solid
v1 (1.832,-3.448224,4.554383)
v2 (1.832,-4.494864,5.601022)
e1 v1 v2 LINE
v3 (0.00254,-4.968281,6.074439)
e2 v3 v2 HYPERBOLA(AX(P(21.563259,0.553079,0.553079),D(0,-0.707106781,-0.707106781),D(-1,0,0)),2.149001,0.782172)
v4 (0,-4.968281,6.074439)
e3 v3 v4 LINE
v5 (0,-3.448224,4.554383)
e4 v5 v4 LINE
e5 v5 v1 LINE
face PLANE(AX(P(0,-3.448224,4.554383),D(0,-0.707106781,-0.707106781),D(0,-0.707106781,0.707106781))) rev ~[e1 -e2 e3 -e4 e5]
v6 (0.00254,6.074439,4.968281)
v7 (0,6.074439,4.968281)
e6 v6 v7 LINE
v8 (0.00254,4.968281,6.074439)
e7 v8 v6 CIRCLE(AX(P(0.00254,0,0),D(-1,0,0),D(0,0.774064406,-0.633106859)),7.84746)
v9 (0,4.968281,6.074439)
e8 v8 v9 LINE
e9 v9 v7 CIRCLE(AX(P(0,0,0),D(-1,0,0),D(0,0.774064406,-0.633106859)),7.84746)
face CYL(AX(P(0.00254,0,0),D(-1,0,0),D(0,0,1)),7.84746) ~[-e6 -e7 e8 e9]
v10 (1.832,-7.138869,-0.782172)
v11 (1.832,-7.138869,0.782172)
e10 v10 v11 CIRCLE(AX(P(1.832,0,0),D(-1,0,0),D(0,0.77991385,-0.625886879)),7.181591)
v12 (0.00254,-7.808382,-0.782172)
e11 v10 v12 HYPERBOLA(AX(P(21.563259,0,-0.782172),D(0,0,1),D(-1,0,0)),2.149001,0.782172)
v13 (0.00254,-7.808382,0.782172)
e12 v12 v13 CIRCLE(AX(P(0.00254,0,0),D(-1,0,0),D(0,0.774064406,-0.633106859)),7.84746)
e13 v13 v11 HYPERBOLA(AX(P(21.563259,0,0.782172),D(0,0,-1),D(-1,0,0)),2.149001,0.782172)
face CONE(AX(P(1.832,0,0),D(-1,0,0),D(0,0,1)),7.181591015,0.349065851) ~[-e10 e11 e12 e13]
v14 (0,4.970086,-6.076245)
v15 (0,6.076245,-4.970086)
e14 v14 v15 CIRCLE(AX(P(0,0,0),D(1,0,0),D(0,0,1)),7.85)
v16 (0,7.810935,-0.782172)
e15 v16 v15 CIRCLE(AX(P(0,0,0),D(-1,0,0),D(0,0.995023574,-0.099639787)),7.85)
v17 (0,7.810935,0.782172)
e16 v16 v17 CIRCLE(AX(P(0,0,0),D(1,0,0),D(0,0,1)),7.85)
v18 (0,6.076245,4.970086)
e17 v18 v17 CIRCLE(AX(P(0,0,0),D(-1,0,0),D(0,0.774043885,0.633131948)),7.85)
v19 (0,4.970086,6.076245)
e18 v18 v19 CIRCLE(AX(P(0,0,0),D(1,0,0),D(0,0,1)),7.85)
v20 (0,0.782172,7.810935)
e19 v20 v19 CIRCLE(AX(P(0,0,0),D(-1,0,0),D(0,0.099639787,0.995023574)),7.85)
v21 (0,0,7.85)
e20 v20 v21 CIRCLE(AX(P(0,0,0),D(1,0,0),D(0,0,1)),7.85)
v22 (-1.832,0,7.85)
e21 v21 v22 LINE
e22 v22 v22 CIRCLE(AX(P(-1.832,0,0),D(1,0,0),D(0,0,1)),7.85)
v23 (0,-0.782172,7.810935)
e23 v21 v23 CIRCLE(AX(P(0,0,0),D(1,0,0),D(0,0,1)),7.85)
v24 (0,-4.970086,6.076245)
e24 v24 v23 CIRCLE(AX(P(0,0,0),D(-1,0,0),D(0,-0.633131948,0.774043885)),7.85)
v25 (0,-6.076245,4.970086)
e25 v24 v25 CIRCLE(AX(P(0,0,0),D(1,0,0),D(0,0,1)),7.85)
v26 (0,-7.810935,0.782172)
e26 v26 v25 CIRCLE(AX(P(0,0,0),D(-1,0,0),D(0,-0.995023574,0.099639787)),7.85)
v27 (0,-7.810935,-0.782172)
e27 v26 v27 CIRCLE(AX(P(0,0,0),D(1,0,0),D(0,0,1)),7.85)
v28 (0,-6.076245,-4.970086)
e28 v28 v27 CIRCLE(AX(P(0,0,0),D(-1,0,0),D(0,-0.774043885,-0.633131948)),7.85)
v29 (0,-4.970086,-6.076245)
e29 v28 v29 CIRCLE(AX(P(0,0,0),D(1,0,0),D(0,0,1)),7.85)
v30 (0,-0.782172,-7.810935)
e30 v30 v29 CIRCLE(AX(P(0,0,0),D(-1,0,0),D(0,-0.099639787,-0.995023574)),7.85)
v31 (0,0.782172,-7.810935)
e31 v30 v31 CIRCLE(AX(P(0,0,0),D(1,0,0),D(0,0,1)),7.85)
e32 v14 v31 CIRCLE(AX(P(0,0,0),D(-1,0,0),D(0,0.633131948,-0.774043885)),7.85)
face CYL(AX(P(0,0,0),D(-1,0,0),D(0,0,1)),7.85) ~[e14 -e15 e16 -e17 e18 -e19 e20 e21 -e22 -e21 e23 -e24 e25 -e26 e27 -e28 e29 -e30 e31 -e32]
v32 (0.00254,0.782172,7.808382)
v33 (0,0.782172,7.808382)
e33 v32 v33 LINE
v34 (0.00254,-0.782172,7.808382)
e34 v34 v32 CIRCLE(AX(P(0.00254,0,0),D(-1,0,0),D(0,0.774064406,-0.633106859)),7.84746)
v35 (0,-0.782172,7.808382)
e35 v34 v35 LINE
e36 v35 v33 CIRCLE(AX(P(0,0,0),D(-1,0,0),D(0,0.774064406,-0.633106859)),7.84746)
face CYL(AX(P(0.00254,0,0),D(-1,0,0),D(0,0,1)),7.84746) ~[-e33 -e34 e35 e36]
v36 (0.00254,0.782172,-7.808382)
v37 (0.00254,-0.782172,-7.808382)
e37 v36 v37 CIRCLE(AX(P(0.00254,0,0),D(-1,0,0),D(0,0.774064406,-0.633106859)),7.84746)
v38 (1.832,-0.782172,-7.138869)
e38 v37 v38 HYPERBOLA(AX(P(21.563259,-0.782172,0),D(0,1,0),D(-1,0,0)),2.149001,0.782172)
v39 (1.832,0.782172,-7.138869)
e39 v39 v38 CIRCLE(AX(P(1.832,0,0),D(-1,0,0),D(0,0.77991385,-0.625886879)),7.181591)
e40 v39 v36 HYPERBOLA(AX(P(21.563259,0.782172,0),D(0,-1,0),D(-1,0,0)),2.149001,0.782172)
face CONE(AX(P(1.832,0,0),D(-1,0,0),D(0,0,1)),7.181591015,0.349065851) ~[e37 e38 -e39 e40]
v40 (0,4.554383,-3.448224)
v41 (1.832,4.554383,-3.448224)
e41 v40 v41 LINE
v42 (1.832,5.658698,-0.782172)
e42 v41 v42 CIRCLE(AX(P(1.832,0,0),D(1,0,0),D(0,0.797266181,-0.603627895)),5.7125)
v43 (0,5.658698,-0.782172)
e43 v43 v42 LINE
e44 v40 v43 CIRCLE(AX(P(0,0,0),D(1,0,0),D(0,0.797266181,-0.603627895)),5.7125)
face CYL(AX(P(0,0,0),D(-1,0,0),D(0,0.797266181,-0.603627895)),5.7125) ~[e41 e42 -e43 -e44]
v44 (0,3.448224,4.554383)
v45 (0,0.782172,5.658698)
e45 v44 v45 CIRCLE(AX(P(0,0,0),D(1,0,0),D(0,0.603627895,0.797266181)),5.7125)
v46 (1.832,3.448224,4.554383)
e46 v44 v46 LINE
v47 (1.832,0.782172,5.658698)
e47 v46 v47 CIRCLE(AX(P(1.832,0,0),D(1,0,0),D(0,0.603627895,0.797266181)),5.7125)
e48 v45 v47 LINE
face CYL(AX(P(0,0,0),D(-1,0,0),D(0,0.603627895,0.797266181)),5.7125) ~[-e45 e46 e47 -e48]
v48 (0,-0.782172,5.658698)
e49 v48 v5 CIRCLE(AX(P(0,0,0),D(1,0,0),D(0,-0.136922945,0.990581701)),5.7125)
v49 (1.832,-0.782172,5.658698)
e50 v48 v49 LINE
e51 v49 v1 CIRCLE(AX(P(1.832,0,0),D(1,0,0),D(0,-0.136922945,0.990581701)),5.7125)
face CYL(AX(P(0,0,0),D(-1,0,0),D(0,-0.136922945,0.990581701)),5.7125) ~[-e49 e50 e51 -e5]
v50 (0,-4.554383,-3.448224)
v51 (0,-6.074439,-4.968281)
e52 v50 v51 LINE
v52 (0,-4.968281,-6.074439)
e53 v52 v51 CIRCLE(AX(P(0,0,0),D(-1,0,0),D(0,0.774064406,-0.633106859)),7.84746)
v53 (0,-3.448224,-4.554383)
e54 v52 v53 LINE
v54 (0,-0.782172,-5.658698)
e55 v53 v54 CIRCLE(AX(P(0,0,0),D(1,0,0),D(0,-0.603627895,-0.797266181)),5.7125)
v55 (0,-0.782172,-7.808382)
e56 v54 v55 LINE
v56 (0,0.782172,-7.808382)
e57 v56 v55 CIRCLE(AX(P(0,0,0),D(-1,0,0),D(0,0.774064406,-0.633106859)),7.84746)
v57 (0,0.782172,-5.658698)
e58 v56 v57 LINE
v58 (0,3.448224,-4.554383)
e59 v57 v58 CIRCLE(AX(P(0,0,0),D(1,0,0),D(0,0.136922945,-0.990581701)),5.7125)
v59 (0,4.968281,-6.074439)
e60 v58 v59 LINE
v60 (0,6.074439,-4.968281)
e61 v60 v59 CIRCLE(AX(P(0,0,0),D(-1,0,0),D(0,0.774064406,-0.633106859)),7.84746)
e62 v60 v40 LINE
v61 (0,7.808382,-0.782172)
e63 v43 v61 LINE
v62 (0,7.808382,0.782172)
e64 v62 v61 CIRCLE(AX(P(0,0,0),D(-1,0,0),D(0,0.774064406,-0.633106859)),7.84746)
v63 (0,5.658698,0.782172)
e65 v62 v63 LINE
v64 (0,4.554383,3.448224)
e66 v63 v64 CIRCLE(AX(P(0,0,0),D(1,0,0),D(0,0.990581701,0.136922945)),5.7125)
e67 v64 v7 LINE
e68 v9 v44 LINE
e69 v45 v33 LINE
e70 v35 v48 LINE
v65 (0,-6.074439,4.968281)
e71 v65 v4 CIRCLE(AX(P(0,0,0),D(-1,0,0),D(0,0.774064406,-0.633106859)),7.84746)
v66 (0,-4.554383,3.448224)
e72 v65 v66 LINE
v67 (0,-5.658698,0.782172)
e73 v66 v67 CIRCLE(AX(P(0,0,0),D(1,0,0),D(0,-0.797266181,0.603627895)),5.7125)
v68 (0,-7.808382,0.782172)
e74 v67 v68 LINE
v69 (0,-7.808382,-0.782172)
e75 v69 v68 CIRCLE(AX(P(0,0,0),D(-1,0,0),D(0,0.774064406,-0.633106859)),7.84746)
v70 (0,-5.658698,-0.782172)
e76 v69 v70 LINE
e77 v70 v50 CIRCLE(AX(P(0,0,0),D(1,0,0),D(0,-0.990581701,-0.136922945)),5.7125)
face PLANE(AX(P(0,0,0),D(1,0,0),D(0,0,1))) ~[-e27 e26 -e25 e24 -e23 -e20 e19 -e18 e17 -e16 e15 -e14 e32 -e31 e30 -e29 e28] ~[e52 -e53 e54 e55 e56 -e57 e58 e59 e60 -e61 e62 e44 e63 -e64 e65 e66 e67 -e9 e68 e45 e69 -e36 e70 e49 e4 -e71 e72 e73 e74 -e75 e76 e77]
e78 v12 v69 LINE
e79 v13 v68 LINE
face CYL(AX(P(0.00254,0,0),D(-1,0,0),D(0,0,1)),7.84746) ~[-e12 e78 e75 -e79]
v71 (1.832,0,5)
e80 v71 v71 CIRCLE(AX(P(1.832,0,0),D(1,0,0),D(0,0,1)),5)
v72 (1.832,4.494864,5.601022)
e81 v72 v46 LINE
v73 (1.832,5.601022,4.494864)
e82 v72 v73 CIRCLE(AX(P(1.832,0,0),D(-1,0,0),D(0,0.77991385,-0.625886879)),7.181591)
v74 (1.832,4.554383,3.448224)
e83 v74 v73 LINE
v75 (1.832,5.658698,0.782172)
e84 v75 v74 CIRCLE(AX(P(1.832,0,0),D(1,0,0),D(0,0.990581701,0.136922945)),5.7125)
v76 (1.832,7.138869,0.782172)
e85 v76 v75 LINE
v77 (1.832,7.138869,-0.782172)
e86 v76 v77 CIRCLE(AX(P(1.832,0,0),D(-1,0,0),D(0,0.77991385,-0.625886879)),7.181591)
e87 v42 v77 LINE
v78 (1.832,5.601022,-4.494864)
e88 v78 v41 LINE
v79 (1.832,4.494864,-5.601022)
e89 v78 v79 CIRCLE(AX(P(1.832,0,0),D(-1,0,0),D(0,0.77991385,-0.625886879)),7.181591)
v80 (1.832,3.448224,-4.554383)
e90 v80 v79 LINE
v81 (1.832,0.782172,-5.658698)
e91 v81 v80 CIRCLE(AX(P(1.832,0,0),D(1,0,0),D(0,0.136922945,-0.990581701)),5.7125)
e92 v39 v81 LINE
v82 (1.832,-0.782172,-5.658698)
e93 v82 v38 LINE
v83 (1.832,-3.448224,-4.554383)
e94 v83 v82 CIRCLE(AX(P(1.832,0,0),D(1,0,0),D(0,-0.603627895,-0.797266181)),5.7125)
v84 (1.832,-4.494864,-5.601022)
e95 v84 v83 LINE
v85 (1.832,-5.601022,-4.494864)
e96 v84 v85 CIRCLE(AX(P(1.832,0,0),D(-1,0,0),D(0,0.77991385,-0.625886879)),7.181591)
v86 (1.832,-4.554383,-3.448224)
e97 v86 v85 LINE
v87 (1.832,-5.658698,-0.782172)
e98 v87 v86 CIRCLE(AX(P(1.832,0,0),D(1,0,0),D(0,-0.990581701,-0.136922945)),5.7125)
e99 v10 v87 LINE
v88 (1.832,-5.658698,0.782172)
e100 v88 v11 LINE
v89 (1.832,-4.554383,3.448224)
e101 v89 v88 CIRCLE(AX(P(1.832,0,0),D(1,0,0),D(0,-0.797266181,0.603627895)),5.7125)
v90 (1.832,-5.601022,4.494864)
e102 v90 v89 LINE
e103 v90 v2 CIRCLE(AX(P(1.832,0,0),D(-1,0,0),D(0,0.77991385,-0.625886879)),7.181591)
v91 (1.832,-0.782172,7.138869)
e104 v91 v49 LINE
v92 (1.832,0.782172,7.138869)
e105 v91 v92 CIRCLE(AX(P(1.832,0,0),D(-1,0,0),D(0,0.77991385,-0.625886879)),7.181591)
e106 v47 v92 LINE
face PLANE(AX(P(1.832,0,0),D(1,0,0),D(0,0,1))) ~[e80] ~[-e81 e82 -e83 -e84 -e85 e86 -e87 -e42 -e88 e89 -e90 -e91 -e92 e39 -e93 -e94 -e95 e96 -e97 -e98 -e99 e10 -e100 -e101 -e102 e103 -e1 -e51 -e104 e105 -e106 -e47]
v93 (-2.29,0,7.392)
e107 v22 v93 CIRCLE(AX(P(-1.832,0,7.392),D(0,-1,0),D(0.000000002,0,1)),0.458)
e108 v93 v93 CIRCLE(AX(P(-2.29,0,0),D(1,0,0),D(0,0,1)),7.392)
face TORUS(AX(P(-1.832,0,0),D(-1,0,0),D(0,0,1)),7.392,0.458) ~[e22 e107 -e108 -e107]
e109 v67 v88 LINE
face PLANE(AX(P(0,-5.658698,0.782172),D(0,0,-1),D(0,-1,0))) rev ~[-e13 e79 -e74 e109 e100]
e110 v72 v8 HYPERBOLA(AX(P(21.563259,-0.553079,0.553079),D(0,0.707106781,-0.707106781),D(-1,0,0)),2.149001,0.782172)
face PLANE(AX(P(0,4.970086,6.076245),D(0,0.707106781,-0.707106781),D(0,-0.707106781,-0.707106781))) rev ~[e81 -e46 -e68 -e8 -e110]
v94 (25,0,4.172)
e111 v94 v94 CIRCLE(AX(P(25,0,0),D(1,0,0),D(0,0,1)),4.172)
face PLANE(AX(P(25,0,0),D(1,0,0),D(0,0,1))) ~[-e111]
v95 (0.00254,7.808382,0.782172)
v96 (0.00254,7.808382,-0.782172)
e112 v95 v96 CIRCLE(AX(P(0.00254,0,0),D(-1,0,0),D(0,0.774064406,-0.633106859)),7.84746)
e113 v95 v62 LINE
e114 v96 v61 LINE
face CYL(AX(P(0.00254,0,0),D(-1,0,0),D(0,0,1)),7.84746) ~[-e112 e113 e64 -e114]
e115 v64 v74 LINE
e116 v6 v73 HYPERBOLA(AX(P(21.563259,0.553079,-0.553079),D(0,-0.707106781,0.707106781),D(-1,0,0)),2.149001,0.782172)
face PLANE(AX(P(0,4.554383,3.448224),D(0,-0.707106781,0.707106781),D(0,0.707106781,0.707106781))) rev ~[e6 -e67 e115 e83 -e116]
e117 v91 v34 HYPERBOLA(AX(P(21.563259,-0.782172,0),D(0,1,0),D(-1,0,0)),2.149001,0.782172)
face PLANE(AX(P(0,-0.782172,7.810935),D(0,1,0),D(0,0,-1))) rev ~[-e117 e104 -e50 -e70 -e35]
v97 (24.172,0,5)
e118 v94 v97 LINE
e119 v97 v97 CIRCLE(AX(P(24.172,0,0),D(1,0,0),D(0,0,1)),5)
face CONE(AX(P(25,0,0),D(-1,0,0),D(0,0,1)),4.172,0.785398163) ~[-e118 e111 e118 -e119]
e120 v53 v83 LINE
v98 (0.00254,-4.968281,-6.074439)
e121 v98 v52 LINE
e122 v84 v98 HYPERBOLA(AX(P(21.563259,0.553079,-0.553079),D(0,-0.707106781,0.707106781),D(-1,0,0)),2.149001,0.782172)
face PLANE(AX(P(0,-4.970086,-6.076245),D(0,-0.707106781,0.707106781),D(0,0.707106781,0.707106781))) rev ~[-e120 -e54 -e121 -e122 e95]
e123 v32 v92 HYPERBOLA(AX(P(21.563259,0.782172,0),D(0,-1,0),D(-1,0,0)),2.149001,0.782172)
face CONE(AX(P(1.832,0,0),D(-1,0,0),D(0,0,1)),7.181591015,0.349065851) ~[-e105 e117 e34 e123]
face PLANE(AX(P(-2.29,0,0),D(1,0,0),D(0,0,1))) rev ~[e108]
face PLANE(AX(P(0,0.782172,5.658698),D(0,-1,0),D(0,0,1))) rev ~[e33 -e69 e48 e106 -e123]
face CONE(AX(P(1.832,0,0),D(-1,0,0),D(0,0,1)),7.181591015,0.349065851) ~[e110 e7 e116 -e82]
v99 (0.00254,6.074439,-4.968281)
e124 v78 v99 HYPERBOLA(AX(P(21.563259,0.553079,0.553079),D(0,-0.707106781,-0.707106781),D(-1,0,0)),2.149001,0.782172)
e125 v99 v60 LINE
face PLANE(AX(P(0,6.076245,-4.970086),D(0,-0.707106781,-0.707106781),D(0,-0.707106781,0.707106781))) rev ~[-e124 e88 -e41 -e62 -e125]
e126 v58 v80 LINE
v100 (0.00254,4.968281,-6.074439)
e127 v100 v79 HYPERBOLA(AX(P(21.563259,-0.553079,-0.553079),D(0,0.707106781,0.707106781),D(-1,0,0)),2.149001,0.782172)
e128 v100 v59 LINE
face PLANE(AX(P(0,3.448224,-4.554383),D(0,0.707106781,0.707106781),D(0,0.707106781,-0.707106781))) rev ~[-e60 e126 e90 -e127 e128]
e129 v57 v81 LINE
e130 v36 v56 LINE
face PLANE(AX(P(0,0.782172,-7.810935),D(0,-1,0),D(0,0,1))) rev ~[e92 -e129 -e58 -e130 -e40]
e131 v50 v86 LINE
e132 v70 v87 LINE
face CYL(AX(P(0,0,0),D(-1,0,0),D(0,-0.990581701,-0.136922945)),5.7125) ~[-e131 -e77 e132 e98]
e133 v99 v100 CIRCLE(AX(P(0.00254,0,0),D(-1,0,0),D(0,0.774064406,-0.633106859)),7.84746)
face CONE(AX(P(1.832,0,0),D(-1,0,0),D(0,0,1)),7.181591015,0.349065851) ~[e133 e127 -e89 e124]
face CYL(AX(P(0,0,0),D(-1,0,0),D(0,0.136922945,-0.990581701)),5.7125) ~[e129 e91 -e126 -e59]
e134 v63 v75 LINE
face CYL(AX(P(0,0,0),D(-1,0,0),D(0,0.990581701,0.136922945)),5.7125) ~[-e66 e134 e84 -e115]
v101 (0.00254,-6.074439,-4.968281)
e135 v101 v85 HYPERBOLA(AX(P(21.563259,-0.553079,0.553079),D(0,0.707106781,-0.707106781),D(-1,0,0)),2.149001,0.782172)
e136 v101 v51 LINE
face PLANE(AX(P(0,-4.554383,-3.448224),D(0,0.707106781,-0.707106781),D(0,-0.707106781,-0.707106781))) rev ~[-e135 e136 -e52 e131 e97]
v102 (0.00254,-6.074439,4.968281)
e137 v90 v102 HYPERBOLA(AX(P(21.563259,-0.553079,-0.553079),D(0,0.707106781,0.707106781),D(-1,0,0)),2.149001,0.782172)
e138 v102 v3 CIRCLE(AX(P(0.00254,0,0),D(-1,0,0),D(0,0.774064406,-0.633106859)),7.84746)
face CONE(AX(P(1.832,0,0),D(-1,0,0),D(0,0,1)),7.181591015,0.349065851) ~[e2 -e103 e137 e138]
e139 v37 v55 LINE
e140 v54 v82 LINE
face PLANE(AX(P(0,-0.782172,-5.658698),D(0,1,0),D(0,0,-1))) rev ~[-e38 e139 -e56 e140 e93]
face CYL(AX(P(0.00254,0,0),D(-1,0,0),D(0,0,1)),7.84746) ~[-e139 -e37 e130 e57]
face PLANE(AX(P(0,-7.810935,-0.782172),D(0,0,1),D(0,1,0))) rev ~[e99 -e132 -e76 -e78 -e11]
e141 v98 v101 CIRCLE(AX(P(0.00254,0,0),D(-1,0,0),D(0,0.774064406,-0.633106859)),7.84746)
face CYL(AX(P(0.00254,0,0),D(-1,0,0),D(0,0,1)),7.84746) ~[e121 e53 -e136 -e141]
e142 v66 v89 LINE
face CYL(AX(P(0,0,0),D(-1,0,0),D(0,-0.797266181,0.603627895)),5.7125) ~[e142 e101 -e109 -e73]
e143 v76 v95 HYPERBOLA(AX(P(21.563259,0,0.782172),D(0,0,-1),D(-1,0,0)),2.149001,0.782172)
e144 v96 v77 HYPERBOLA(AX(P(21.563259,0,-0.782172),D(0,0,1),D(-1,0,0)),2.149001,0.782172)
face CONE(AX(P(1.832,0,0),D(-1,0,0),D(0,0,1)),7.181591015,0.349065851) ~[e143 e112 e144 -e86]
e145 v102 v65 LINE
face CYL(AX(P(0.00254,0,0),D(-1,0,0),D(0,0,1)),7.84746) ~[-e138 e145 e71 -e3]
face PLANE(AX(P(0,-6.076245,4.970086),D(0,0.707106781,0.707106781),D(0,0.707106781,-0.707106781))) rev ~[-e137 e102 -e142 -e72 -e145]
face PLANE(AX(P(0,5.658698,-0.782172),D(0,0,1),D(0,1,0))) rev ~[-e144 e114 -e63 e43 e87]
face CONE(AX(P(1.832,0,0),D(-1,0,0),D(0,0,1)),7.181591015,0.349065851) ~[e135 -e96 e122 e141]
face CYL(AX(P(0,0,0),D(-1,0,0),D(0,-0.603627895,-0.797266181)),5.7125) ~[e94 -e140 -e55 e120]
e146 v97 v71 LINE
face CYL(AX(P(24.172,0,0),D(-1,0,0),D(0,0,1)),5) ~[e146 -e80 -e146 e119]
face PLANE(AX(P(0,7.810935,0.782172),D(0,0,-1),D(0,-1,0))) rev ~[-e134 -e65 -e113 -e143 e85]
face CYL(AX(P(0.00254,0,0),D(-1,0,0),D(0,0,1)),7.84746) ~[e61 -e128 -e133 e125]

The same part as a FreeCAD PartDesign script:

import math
import FreeCAD as App
import Part
import Sketcher
from FreeCAD import Vector
Q = App.Units.Quantity

doc = App.newDocument("Part")
params = doc.addObject("Spreadsheet::Sheet", "Params")
for row, (alias, value) in enumerate([
    ("sketch1_width", "27.29 mm"),
    ("sketch1_width2", "22.34 mm"),
    ("revolution_angle", "360 deg"),
    ("sketch2_radius", "7.85 mm"),
    ("pocket1_length", "1.832 mm"),
], start=1):
    params.set(f"A{row}", alias)
    params.set(f"B{row}", "=" + value)
    params.setAlias(f"B{row}", alias)

body = doc.addObject("PartDesign::Body", "Body")

# Sketch on XY plane
sketch1 = doc.addObject("Sketcher::SketchObject", "Sketch")
body.addObject(sketch1)
sketch1.AttachmentSupport = (doc.XY_Plane, [""])
sketch1.MapMode = "FlatFace"
sketch1.addGeometry(Part.LineSegment(Vector(-2.29, 7.392, 0), Vector(-2.29, 0, 0)), False)
sketch1.addGeometry(Part.LineSegment(Vector(-2.29, 0, 0), Vector(25, 0, 0)), False)
sketch1.addGeometry(Part.LineSegment(Vector(25, 0, 0), Vector(25, 4.172, 0)), False)
sketch1.addGeometry(Part.LineSegment(Vector(25, 4.172, 0), Vector(24.172, 5, 0)), False)
sketch1.addGeometry(Part.LineSegment(Vector(24.172, 5, 0), Vector(1.832, 5, 0)), False)
sketch1.addGeometry(Part.LineSegment(Vector(1.832, 5, 0), Vector(1.832, 7.181591, 0)), False)
sketch1.addGeometry(Part.LineSegment(Vector(1.832, 7.181591, 0), Vector(0.00254, 7.84746, 0)), False)
sketch1.addGeometry(Part.LineSegment(Vector(0.00254, 7.84746, 0), Vector(0, 7.84746, 0)), False)
sketch1.addGeometry(Part.LineSegment(Vector(0, 7.84746, 0), Vector(0, 7.85, 0)), False)
sketch1.addGeometry(Part.LineSegment(Vector(0, 7.85, 0), Vector(-1.832, 7.85, 0)), False)
sketch1.addGeometry(Part.ArcOfCircle(Part.Circle(Vector(-1.832, 7.392, 0), Vector(0, 0, 1), 0.458), math.radians(90), math.radians(180)), False)
sketch1.addConstraint(Sketcher.Constraint("Coincident", 0, 2, 1, 1))
sketch1.addConstraint(Sketcher.Constraint("Coincident", 1, 2, 2, 1))
sketch1.addConstraint(Sketcher.Constraint("Coincident", 2, 2, 3, 1))
sketch1.addConstraint(Sketcher.Constraint("Coincident", 3, 2, 4, 1))
sketch1.addConstraint(Sketcher.Constraint("Coincident", 4, 2, 5, 1))
sketch1.addConstraint(Sketcher.Constraint("Coincident", 5, 2, 6, 1))
sketch1.addConstraint(Sketcher.Constraint("Coincident", 6, 2, 7, 1))
sketch1.addConstraint(Sketcher.Constraint("Coincident", 7, 2, 8, 1))
sketch1.addConstraint(Sketcher.Constraint("Coincident", 8, 2, 9, 1))
sketch1.addConstraint(Sketcher.Constraint("Tangent", 9, 2, 10, 1))
sketch1.addConstraint(Sketcher.Constraint("Tangent", 10, 2, 0, 1))
sketch1.addConstraint(Sketcher.Constraint("Vertical", 0))
sketch1.addConstraint(Sketcher.Constraint("Horizontal", 1))
sketch1.addConstraint(Sketcher.Constraint("Vertical", 2))
sketch1.addConstraint(Sketcher.Constraint("Horizontal", 4))
sketch1.addConstraint(Sketcher.Constraint("Vertical", 5))
sketch1.addConstraint(Sketcher.Constraint("Horizontal", 7))
sketch1.addConstraint(Sketcher.Constraint("Vertical", 8))
sketch1.addConstraint(Sketcher.Constraint("Horizontal", 9))
sketch1.addConstraint(Sketcher.Constraint("PointOnObject", 0, 2, -1))
sketch1.addConstraint(Sketcher.Constraint("PointOnObject", 7, 2, -2))
sketch1.addConstraint(Sketcher.Constraint("Equal", 7, 8))
sketch1.addConstraint(Sketcher.Constraint("Angle", 3, Q("135 deg")))
sketch1.addConstraint(Sketcher.Constraint("Angle", 6, Q("160 deg")))
sketch1.addConstraint(Sketcher.Constraint("DistanceX", -1, 1, 1, 2, Q("25 mm")))
sketch1.addConstraint(Sketcher.Constraint("DistanceY", -1, 1, 3, 2, Q("5 mm")))
sketch1.addConstraint(Sketcher.Constraint("Radius", 10, Q("0.458 mm")))
sketch1.addConstraint(Sketcher.Constraint("DistanceX", 1, 1, 1, 2, Q("27.29 mm")))
sketch1.addConstraint(Sketcher.Constraint("DistanceX", 4, 2, 4, 1, Q("22.34 mm")))
sketch1.addConstraint(Sketcher.Constraint("DistanceY", 0, 2, 0, 1, Q("7.392 mm")))
sketch1.addConstraint(Sketcher.Constraint("DistanceY", 2, 1, 2, 2, Q("4.172 mm")))
sketch1.addConstraint(Sketcher.Constraint("DistanceX", 7, 2, 7, 1, Q("0.00254 mm")))
sketch1.setExpression("Constraints[27]", "Params.sketch1_width")
sketch1.setExpression("Constraints[28]", "Params.sketch1_width2")
revolution = doc.addObject("PartDesign::Revolution", "Revolution")
body.addObject(revolution)
revolution.Profile = sketch1
revolution.ReferenceAxis = (sketch1, ["H_Axis"])
revolution.setExpression("Angle", "Params.revolution_angle")

# Sketch on YZ plane
sketch2 = doc.addObject("Sketcher::SketchObject", "Sketch001")
body.addObject(sketch2)
sketch2.AttachmentSupport = (doc.YZ_Plane, [""])
sketch2.MapMode = "FlatFace"
sketch2.addGeometry(Part.LineSegment(Vector(7.810935, -0.782172, 0), Vector(5.658698, -0.782172, 0)), False)
sketch2.addGeometry(Part.ArcOfCircle(Part.Circle(Vector(0, 0, 0), Vector(0, 0, 1), 5.7125), math.radians(-37.130171), math.radians(-7.869829)), False)
sketch2.addGeometry(Part.LineSegment(Vector(4.554383, -3.448224, 0), Vector(6.076245, -4.970086, 0)), False)
sketch2.addGeometry(Part.ArcOfCircle(Part.Circle(Vector(0, 0, 0), Vector(0, 0, 1), 7.85), math.radians(-39.281572), math.radians(-5.718428)), False)
sketch2.addConstraint(Sketcher.Constraint("Coincident", 0, 2, 1, 2))
sketch2.addConstraint(Sketcher.Constraint("Coincident", 1, 1, 2, 1))
sketch2.addConstraint(Sketcher.Constraint("Coincident", 2, 2, 3, 1))
sketch2.addConstraint(Sketcher.Constraint("Coincident", 3, 2, 0, 1))
sketch2.addConstraint(Sketcher.Constraint("Horizontal", 0))
sketch2.addConstraint(Sketcher.Constraint("Coincident", 1, 3, -1, 1))
sketch2.addConstraint(Sketcher.Constraint("Coincident", 3, 3, -1, 1))
sketch2.addConstraint(Sketcher.Constraint("Angle", 2, Q("-45 deg")))
sketch2.addConstraint(Sketcher.Constraint("Radius", 3, Q("7.85 mm")))
sketch2.addConstraint(Sketcher.Constraint("Radius", 1, Q("5.7125 mm")))
sketch2.addConstraint(Sketcher.Constraint("DistanceX", 0, 2, 0, 1, Q("2.152237 mm")))
sketch2.addConstraint(Sketcher.Constraint("DistanceX", 1, 1, 2, 2, Q("1.521861 mm")))
sketch2.setExpression("Constraints[8]", "Params.sketch2_radius")
pocket1 = doc.addObject("PartDesign::Pocket", "Pocket")
body.addObject(pocket1)
pocket1.Profile = sketch2
pocket1.setExpression("Length", "Params.pocket1_length")
pocket1.Reversed = True
doc.recompute()

polarpattern = doc.addObject("PartDesign::PolarPattern", "PolarPattern")
body.addObject(polarpattern)
polarpattern.Originals = [pocket1]
polarpattern.Axis = (doc.X_Axis, [""])
polarpattern.Angle = 360
polarpattern.Occurrences = 8
body.Tip = polarpattern

doc.recompute()
